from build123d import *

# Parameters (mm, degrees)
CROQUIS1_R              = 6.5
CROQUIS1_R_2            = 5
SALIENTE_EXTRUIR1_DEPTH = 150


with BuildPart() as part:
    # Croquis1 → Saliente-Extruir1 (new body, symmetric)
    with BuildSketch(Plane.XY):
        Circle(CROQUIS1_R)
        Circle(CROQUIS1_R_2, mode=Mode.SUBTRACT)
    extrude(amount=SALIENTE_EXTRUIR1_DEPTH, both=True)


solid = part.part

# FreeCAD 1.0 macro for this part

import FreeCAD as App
import Part
import Sketcher
from FreeCAD import Vector
Q = App.Units.Quantity

doc = App.newDocument("Part")
body = doc.addObject("PartDesign::Body", "Body")

sketch1 = body.newObject("Sketcher::SketchObject", "Sketch")
sketch1.AttachmentSupport = (doc.getObject("XY_Plane"), [""])
sketch1.MapMode = "FlatFace"
sketch1.addGeometry(Part.Circle(Vector(0, 0, 0), Vector(0, 0, 1), 6), False)
sketch1.addGeometry(Part.Circle(Vector(0, 0, 0), Vector(0, 0, 1), 5), False)
sketch1.addConstraint(Sketcher.Constraint("Coincident", 0, 3, -1, 1))
sketch1.addConstraint(Sketcher.Constraint("Coincident", 1, 3, -1, 1))
sketch1.addConstraint(Sketcher.Constraint("Diameter", 0, Q("13 mm")))
sketch1.addConstraint(Sketcher.Constraint("Diameter", 1, Q("10 mm")))
pad1 = body.newObject("PartDesign::Pad", "Pad")
pad1.Profile = sketch1
pad1.Length = 300
pad1.Midplane = True

doc.recompute()
